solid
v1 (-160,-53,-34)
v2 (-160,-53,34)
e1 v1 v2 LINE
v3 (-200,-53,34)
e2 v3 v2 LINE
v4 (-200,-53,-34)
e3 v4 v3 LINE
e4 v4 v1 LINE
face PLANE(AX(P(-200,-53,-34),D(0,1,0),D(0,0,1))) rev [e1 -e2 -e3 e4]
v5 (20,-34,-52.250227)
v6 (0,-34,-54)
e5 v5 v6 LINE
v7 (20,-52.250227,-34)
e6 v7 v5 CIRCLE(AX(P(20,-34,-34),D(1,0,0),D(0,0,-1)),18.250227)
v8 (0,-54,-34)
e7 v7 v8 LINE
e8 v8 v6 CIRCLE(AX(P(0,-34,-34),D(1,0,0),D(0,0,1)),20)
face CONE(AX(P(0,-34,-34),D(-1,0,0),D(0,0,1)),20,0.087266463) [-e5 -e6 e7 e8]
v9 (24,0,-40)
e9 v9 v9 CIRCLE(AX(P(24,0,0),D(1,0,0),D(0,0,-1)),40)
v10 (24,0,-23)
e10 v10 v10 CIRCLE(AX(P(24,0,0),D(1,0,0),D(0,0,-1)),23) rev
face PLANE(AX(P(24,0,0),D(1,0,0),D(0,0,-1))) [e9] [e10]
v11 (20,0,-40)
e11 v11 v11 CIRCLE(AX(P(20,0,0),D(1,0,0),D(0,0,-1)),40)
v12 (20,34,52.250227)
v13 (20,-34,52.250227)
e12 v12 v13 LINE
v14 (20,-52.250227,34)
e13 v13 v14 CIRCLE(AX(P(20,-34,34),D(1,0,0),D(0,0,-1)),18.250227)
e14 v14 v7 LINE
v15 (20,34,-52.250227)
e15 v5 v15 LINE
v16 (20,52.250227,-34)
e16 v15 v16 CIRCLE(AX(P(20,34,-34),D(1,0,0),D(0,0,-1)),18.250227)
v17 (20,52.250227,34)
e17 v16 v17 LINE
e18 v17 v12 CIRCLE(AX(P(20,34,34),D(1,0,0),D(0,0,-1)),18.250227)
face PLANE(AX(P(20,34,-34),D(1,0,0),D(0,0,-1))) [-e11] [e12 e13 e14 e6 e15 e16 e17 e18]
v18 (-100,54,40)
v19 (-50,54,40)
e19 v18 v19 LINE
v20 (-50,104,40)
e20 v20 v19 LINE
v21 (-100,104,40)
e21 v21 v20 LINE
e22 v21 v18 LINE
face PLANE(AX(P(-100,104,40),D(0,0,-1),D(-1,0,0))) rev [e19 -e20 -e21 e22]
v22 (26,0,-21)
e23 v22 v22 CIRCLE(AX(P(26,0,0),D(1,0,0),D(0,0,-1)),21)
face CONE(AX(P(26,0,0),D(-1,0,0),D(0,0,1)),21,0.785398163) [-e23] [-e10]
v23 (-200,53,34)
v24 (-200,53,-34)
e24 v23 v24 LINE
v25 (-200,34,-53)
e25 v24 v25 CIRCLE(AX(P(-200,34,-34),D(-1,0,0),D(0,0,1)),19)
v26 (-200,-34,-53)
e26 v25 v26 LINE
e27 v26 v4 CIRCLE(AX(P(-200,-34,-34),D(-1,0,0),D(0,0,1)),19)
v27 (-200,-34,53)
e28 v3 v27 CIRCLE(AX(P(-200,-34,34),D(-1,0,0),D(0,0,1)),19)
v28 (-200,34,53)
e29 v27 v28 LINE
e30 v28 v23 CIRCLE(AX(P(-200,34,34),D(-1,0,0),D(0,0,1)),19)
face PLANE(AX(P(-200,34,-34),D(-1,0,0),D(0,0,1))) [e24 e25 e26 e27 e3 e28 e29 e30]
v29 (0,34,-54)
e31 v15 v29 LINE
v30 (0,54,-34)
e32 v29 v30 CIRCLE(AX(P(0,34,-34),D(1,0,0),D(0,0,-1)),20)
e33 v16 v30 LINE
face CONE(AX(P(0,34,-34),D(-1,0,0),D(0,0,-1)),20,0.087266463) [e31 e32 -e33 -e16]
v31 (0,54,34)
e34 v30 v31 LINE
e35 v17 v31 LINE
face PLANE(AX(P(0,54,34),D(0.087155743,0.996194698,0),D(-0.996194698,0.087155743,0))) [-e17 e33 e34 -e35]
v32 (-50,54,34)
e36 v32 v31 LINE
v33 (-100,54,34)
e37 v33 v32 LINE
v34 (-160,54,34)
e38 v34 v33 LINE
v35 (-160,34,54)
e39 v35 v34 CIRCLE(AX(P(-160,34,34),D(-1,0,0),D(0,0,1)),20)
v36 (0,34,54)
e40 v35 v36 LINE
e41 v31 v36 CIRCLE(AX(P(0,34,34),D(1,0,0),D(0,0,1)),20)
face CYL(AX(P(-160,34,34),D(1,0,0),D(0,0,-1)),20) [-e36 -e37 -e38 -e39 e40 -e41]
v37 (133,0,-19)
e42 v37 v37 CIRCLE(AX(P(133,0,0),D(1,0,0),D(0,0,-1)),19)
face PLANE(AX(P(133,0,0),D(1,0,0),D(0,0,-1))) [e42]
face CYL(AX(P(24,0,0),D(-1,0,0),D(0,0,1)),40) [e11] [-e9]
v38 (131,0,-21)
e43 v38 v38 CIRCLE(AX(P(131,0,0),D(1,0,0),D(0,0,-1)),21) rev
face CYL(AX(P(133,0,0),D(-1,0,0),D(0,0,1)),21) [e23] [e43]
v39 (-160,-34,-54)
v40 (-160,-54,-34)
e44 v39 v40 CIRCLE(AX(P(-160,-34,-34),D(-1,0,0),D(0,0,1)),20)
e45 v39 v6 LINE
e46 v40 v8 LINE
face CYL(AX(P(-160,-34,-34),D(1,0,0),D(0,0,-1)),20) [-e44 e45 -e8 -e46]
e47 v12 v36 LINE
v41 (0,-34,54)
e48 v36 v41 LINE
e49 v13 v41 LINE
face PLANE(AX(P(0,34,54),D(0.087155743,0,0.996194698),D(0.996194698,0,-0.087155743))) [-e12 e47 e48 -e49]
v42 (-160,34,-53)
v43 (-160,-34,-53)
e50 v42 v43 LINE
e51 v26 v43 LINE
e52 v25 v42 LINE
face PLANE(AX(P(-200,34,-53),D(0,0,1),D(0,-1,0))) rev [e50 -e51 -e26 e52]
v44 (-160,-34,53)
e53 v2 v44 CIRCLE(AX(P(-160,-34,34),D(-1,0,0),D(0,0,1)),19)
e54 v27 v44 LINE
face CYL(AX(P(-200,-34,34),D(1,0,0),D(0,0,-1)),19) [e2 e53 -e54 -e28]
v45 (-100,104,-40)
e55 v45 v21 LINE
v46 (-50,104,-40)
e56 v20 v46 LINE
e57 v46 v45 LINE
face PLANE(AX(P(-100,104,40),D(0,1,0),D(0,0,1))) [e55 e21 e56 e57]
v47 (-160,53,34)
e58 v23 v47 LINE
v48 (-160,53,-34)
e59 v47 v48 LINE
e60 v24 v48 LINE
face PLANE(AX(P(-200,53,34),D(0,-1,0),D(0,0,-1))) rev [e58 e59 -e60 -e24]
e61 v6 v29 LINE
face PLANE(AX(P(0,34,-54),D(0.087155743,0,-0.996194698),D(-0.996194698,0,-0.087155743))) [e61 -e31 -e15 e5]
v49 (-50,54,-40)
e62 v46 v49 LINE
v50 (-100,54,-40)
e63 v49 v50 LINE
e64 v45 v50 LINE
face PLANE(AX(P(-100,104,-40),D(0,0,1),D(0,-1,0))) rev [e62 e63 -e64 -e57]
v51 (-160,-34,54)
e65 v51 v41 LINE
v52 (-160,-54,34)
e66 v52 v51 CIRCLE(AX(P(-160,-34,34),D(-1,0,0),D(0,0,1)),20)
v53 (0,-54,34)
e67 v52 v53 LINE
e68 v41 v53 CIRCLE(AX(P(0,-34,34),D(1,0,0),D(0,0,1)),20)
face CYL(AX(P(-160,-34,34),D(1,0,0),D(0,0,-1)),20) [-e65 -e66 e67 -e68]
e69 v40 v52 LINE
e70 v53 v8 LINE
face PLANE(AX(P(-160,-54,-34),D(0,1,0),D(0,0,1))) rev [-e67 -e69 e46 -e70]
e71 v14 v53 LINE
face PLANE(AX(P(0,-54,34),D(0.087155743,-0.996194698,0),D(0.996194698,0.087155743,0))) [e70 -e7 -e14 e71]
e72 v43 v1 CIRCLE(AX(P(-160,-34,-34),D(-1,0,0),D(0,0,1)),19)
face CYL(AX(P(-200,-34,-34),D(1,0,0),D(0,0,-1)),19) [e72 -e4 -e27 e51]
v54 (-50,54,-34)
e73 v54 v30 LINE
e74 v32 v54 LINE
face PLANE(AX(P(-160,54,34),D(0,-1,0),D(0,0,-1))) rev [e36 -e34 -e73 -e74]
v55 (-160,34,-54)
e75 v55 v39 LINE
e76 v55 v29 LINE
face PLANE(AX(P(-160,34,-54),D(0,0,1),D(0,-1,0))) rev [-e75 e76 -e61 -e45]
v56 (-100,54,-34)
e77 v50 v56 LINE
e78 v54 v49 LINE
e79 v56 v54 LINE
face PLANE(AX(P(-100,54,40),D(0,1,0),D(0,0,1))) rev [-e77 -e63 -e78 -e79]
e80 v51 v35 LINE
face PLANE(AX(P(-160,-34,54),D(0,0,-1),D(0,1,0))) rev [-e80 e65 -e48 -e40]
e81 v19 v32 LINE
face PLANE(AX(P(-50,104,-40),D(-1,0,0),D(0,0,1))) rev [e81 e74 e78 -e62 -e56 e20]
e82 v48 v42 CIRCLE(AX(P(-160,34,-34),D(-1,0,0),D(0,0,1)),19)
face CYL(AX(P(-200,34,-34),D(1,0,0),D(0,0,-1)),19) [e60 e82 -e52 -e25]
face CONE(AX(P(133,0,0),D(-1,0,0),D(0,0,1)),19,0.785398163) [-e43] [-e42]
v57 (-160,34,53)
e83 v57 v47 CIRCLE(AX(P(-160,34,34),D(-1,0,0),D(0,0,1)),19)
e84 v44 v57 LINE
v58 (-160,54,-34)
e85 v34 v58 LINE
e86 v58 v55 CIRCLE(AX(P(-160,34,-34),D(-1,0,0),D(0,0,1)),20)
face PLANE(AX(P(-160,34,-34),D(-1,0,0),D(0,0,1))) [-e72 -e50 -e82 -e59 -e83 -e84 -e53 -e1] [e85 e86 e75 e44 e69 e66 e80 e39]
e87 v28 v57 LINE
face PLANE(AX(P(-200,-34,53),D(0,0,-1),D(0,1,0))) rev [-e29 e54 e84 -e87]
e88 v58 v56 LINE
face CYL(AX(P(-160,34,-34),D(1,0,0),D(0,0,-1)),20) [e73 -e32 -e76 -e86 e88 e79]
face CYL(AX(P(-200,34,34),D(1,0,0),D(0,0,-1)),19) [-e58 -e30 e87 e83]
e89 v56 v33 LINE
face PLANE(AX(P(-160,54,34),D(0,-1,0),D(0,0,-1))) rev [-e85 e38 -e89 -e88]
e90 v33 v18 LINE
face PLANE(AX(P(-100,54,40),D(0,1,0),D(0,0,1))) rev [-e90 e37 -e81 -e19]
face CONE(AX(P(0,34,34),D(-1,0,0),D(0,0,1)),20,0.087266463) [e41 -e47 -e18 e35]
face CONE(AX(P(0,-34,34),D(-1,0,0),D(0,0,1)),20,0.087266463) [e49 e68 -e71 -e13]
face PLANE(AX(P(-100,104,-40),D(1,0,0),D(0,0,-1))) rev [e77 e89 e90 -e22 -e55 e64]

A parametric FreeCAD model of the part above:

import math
import FreeCAD as App
import Part
import Sketcher
from FreeCAD import Vector


def edges_at(feature, points):
    """Names of the edges that pass closest to the given points."""
    edges = feature.Shape.Edges
    near = lambda p: min(range(len(edges)), key=lambda i: edges[i].distToShape(Part.Vertex(*p))[0])
    return sorted({f"Edge{near(p) + 1}" for p in points})


def add_polygon(sketch, points):
    """Adds a closed chain of lines whose ends are joined by coincident constraints."""
    first, n = sketch.GeometryCount, len(points)
    for a, b in zip(points, points[1:] + points[:1]):
        sketch.addGeometry(Part.LineSegment(App.Vector(*a, 0), App.Vector(*b, 0)), False)
    for i in range(n):
        sketch.addConstraint(Sketcher.Constraint("Coincident", first + i, 2, first + (i + 1) % n, 1))

doc = App.newDocument("Part")
body = doc.addObject("PartDesign::Body", "Body")

# Sketch on YZ plane
sketch1 = body.newObject("Sketcher::SketchObject", "Sketch")
sketch1.AttachmentSupport = (doc.getObject("YZ_Plane"), [""])
sketch1.MapMode = "FlatFace"
sketch1.addGeometry([
    Part.ArcOfCircle(Part.Circle(Vector(34, 34, 0), Vector(0, 0, 1), 20), math.radians(0), math.radians(90)),  # 0
    Part.LineSegment(Vector(34, 54, 0), Vector(-34, 54, 0)),  # 1
    Part.ArcOfCircle(Part.Circle(Vector(-34, 34, 0), Vector(0, 0, 1), 20), math.radians(90), math.radians(180)),  # 2
    Part.LineSegment(Vector(-54, 34, 0), Vector(-54, -34, 0)),  # 3
    Part.ArcOfCircle(Part.Circle(Vector(-34, -34, 0), Vector(0, 0, 1), 20), math.radians(180), math.radians(270)),  # 4
    Part.LineSegment(Vector(-34, -54, 0), Vector(34, -54, 0)),  # 5
    Part.ArcOfCircle(Part.Circle(Vector(34, -34, 0), Vector(0, 0, 1), 20), math.radians(-90), math.radians(0)),  # 6
    Part.LineSegment(Vector(54, -34, 0), Vector(54, 34, 0)),  # 7
], False)
sketch1.addConstraint([
    Sketcher.Constraint("Tangent", 0, 2, 1, 1),
    Sketcher.Constraint("Tangent", 1, 2, 2, 1),
    Sketcher.Constraint("Tangent", 2, 2, 3, 1),
    Sketcher.Constraint("Tangent", 3, 2, 4, 1),
    Sketcher.Constraint("Tangent", 4, 2, 5, 1),
    Sketcher.Constraint("Tangent", 5, 2, 6, 1),
    Sketcher.Constraint("Tangent", 6, 2, 7, 1),
    Sketcher.Constraint("Tangent", 7, 2, 0, 1),
    Sketcher.Constraint("Horizontal", 1),
    Sketcher.Constraint("Vertical", 3),
    Sketcher.Constraint("Horizontal", 5),
    Sketcher.Constraint("Vertical", 7),
    Sketcher.Constraint("Equal", 0, 2),
    Sketcher.Constraint("Equal", 2, 4),
    Sketcher.Constraint("Equal", 4, 6),
    Sketcher.Constraint("Symmetric", 0, 3, 4, 3, -1, 1),
    Sketcher.Constraint("Equal", 5, 3),
    Sketcher.Constraint("Radius", 0, 20.0),
    Sketcher.Constraint("DistanceX", 1, 2, 1, 1, 68.0),
])
pad1 = body.newObject("PartDesign::Pad", "Pad")
pad1.Profile = sketch1
pad1.Length = 20
pad1.TaperAngle = -5

# Sketch on YZ plane
sketch2 = body.newObject("Sketcher::SketchObject", "Sketch001")
sketch2.AttachmentSupport = (doc.getObject("YZ_Plane"), [""])
sketch2.MapMode = "FlatFace"
sketch2.AttachmentOffset = App.Placement(Vector(0, 0, 20), App.Rotation())
sketch2.addGeometry(Part.Circle(Vector(0, 0, 0), Vector(0, 0, 1), 40), False)
sketch2.addConstraint([
    Sketcher.Constraint("Coincident", 0, 3, -1, 1),
    Sketcher.Constraint("Diameter", 0, 80.0),
])
pad2 = body.newObject("PartDesign::Pad", "Pad001")
pad2.Profile = sketch2
pad2.Length = 4

# Sketch on YZ plane
sketch3 = body.newObject("Sketcher::SketchObject", "Sketch002")
sketch3.AttachmentSupport = (doc.getObject("YZ_Plane"), [""])
sketch3.MapMode = "FlatFace"
sketch3.AttachmentOffset = App.Placement(Vector(0, 0, 24), App.Rotation())
sketch3.addGeometry(Part.Circle(Vector(0, 0, 0), Vector(0, 0, 1), 21), False)
sketch3.addConstraint([
    Sketcher.Constraint("Coincident", 0, 3, -1, 1),
    Sketcher.Constraint("Diameter", 0, 42.0),
])
pad3 = body.newObject("PartDesign::Pad", "Pad002")
pad3.Profile = sketch3
pad3.Length = 109
doc.recompute()

chamfer = body.newObject("PartDesign::Chamfer", "Chamfer")
chamfer.Base = (pad3, edges_at(pad3, [(24, 0, 21)]))
chamfer.Size = 2
doc.recompute()

chamfer2 = body.newObject("PartDesign::Chamfer", "Chamfer001")
chamfer2.Base = (chamfer, edges_at(chamfer, [(133, 0, 21)]))
chamfer2.Size = 2

# Sketch on YZ plane
sketch4 = body.newObject("Sketcher::SketchObject", "Sketch003")
sketch4.AttachmentSupport = (doc.getObject("YZ_Plane"), [""])
sketch4.MapMode = "FlatFace"
sketch4.addGeometry([
    Part.LineSegment(Vector(34, -54, 0), Vector(-34, -54, 0)),  # 0
    Part.ArcOfCircle(Part.Circle(Vector(-34, -34, 0), Vector(0, 0, 1), 20), math.radians(180), math.radians(270)),  # 1
    Part.LineSegment(Vector(-54, -34, 0), Vector(-54, 34, 0)),  # 2
    Part.ArcOfCircle(Part.Circle(Vector(-34, 34, 0), Vector(0, 0, 1), 20), math.radians(90), math.radians(180)),  # 3
    Part.LineSegment(Vector(-34, 54, 0), Vector(34, 54, 0)),  # 4
    Part.ArcOfCircle(Part.Circle(Vector(34, 34, 0), Vector(0, 0, 1), 20), math.radians(0), math.radians(90)),  # 5
    Part.LineSegment(Vector(54, 34, 0), Vector(54, -34, 0)),  # 6
    Part.ArcOfCircle(Part.Circle(Vector(34, -34, 0), Vector(0, 0, 1), 20), math.radians(-90), math.radians(0)),  # 7
], False)
sketch4.addConstraint([
    Sketcher.Constraint("Tangent", 0, 2, 1, 2),
    Sketcher.Constraint("Tangent", 1, 1, 2, 1),
    Sketcher.Constraint("Tangent", 2, 2, 3, 2),
    Sketcher.Constraint("Tangent", 3, 1, 4, 1),
    Sketcher.Constraint("Tangent", 4, 2, 5, 2),
    Sketcher.Constraint("Tangent", 5, 1, 6, 1),
    Sketcher.Constraint("Tangent", 6, 2, 7, 2),
    Sketcher.Constraint("Tangent", 7, 1, 0, 1),
    Sketcher.Constraint("Horizontal", 0),
    Sketcher.Constraint("Vertical", 2),
    Sketcher.Constraint("Horizontal", 4),
    Sketcher.Constraint("Vertical", 6),
    Sketcher.Constraint("Equal", 1, 3),
    Sketcher.Constraint("Equal", 3, 5),
    Sketcher.Constraint("Equal", 5, 7),
    Sketcher.Constraint("Symmetric", 1, 3, 5, 3, -1, 1),
    Sketcher.Constraint("Equal", 4, 2),
    Sketcher.Constraint("Radius", 1, 20.0),
    Sketcher.Constraint("DistanceX", 0, 2, 0, 1, 68.0),
])
pad4 = body.newObject("PartDesign::Pad", "Pad003")
pad4.Profile = sketch4
pad4.Length = 160
pad4.Reversed = True

# Sketch on XZ plane
sketch5 = body.newObject("Sketcher::SketchObject", "Sketch004")
sketch5.AttachmentSupport = (doc.getObject("XZ_Plane"), [""])
sketch5.MapMode = "FlatFace"
sketch5.AttachmentOffset = App.Placement(Vector(0, 0, -54), App.Rotation())
add_polygon(sketch5, [(-100, -40), (-100, 40), (-50, 40), (-50, -40)])  # lines 0-3
sketch5.addConstraint([
    Sketcher.Constraint("Vertical", 0),
    Sketcher.Constraint("Horizontal", 1),
    Sketcher.Constraint("Vertical", 2),
    Sketcher.Constraint("Horizontal", 3),
    Sketcher.Constraint("DistanceX", 1, 1, 1, 2, 50.0),
    Sketcher.Constraint("DistanceY", 0, 1, 0, 2, 80.0),
    Sketcher.Constraint("DistanceX", 0, 2, -1, 1, 100.0),
    Sketcher.Constraint("DistanceY", -1, 1, 0, 2, 40.0),
])
pad5 = body.newObject("PartDesign::Pad", "Pad004")
pad5.Profile = sketch5
pad5.Length = 50
pad5.Reversed = True

# Sketch on YZ plane
sketch6 = body.newObject("Sketcher::SketchObject", "Sketch005")
sketch6.AttachmentSupport = (doc.getObject("YZ_Plane"), [""])
sketch6.MapMode = "FlatFace"
sketch6.AttachmentOffset = App.Placement(Vector(0, 0, -160), App.Rotation())
sketch6.addGeometry([
    Part.LineSegment(Vector(34, -53, 0), Vector(-34, -53, 0)),  # 0
    Part.ArcOfCircle(Part.Circle(Vector(-34, -34, 0), Vector(0, 0, 1), 19), math.radians(180), math.radians(270)),  # 1
    Part.LineSegment(Vector(-53, -34, 0), Vector(-53, 34, 0)),  # 2
    Part.ArcOfCircle(Part.Circle(Vector(-34, 34, 0), Vector(0, 0, 1), 19), math.radians(90), math.radians(180)),  # 3
    Part.LineSegment(Vector(-34, 53, 0), Vector(34, 53, 0)),  # 4
    Part.ArcOfCircle(Part.Circle(Vector(34, 34, 0), Vector(0, 0, 1), 19), math.radians(0), math.radians(90)),  # 5
    Part.LineSegment(Vector(53, 34, 0), Vector(53, -34, 0)),  # 6
    Part.ArcOfCircle(Part.Circle(Vector(34, -34, 0), Vector(0, 0, 1), 19), math.radians(-90), math.radians(0)),  # 7
], False)
sketch6.addConstraint([
    Sketcher.Constraint("Tangent", 0, 2, 1, 2),
    Sketcher.Constraint("Tangent", 1, 1, 2, 1),
    Sketcher.Constraint("Tangent", 2, 2, 3, 2),
    Sketcher.Constraint("Tangent", 3, 1, 4, 1),
    Sketcher.Constraint("Tangent", 4, 2, 5, 2),
    Sketcher.Constraint("Tangent", 5, 1, 6, 1),
    Sketcher.Constraint("Tangent", 6, 2, 7, 2),
    Sketcher.Constraint("Tangent", 7, 1, 0, 1),
    Sketcher.Constraint("Horizontal", 0),
    Sketcher.Constraint("Vertical", 2),
    Sketcher.Constraint("Horizontal", 4),
    Sketcher.Constraint("Vertical", 6),
    Sketcher.Constraint("Equal", 1, 3),
    Sketcher.Constraint("Equal", 3, 5),
    Sketcher.Constraint("Equal", 5, 7),
    Sketcher.Constraint("Symmetric", 1, 3, 5, 3, -1, 1),
    Sketcher.Constraint("Equal", 4, 2),
    Sketcher.Constraint("Radius", 1, 19.0),
    Sketcher.Constraint("DistanceX", 0, 2, 0, 1, 68.0),
])
pad6 = body.newObject("PartDesign::Pad", "Pad005")
pad6.Profile = sketch6
pad6.Length = 40
pad6.Reversed = True

doc.recompute()
